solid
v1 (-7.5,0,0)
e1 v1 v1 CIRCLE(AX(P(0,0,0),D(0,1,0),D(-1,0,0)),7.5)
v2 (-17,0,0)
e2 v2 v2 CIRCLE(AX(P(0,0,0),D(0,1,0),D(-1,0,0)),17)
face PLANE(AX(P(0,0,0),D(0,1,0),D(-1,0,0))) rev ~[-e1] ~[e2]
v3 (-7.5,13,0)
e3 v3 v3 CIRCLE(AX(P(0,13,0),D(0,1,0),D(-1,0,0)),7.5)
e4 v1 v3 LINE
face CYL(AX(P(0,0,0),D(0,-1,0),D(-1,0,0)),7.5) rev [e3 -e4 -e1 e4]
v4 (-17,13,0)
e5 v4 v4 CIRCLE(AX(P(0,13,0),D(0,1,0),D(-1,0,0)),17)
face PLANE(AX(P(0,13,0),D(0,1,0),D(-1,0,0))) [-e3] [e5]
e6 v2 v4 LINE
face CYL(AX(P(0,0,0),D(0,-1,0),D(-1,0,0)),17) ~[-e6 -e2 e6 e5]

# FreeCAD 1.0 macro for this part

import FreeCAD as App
import Part
import Sketcher
Q = App.Units.Quantity

doc = App.newDocument("Part")
params = doc.addObject("Spreadsheet::Sheet", "Params")
for row, (alias, value) in enumerate([
    ("sketch1_diameter", "34 mm"),
    ("sketch1_diameter2", "15 mm"),
    ("pad1_length", "13 mm"),
], start=1):
    params.set(f"A{row}", alias)
    params.set(f"B{row}", "=" + value)
    params.setAlias(f"B{row}", alias)

body = doc.addObject("PartDesign::Body", "Body")

# Sketch on XZ plane
sketch1 = body.newObject("Sketcher::SketchObject", "Sketch")
sketch1.AttachmentSupport = (doc.getObject("XZ_Plane"), [""])
sketch1.MapMode = "FlatFace"
sketch1.addGeometry(Part.Circle(App.Vector(0, 0, 0), App.Vector(0, 0, 1), 17), False)
sketch1.addGeometry(Part.Circle(App.Vector(0, 0, 0), App.Vector(0, 0, 1), 8), False)
sketch1.addConstraint(Sketcher.Constraint("Coincident", 0, 3, -1, 1))
sketch1.addConstraint(Sketcher.Constraint("Coincident", 1, 3, -1, 1))
sketch1.addConstraint(Sketcher.Constraint("Diameter", 0, Q("34 mm")))
sketch1.addConstraint(Sketcher.Constraint("Diameter", 1, Q("15 mm")))
sketch1.setExpression("Constraints[2]", "Params.sketch1_diameter")
sketch1.setExpression("Constraints[3]", "Params.sketch1_diameter2")
pad1 = body.newObject("PartDesign::Pad", "Pad")
pad1.Profile = sketch1
pad1.setExpression("Length", "Params.pad1_length")
pad1.Reversed = True

doc.recompute()
